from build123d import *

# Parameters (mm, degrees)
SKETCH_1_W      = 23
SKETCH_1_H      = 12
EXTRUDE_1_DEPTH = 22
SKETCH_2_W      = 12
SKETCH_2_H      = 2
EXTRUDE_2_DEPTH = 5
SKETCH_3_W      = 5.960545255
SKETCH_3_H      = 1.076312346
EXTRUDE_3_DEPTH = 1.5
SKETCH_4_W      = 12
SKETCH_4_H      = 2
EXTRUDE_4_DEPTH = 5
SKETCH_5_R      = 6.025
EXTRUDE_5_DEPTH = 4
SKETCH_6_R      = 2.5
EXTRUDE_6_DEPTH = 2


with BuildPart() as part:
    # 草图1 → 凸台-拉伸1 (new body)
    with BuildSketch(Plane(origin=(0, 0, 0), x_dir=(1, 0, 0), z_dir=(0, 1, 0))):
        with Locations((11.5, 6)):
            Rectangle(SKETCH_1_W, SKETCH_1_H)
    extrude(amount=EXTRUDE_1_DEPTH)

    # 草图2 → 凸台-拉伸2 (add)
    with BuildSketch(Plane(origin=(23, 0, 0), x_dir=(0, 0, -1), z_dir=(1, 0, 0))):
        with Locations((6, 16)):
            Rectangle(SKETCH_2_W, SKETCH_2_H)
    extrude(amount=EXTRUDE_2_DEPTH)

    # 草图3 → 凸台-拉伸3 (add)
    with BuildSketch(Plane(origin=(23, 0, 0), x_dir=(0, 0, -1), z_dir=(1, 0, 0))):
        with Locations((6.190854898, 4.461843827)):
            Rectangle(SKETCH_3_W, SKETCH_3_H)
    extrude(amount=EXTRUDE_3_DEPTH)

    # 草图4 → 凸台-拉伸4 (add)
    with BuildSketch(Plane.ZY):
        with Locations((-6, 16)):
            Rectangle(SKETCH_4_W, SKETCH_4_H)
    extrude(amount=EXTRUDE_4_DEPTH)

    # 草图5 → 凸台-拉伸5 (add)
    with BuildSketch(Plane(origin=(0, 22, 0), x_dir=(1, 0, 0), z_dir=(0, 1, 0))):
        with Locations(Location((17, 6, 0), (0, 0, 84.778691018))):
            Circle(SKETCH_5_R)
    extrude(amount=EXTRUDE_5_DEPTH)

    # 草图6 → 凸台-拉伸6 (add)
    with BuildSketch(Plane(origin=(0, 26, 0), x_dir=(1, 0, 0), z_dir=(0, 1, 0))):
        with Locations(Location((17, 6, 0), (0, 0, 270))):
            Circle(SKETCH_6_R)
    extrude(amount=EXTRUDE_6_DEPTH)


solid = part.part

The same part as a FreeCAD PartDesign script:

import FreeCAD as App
import Part
import Sketcher
from FreeCAD import Vector
Q = App.Units.Quantity


def add_polygon(sketch, points):
    """Adds a closed chain of lines whose ends are joined by coincident constraints."""
    first, n = sketch.GeometryCount, len(points)
    for a, b in zip(points, points[1:] + points[:1]):
        sketch.addGeometry(Part.LineSegment(App.Vector(*a, 0), App.Vector(*b, 0)), False)
    for i in range(n):
        sketch.addConstraint(Sketcher.Constraint("Coincident", first + i, 2, first + (i + 1) % n, 1))

doc = App.newDocument("Part")
body = doc.addObject("PartDesign::Body", "Body")

# Sketch on XZ plane
sketch1 = body.newObject("Sketcher::SketchObject", "Sketch")
sketch1.AttachmentSupport = (doc.getObject("XZ_Plane"), [""])
sketch1.MapMode = "FlatFace"
add_polygon(sketch1, [(0, -12), (0, 0), (23, 0), (23, -12)])  # lines 0-3
sketch1.addConstraint(Sketcher.Constraint("Vertical", 0))
sketch1.addConstraint(Sketcher.Constraint("Horizontal", 1))
sketch1.addConstraint(Sketcher.Constraint("Vertical", 2))
sketch1.addConstraint(Sketcher.Constraint("Horizontal", 3))
sketch1.addConstraint(Sketcher.Constraint("Coincident", 0, 2, -1, 1))
sketch1.addConstraint(Sketcher.Constraint("DistanceX", 1, 1, 1, 2, Q("23 mm")))
sketch1.addConstraint(Sketcher.Constraint("DistanceY", 0, 1, 0, 2, Q("12 mm")))
pad1 = body.newObject("PartDesign::Pad", "Pad")
pad1.Profile = sketch1
pad1.Length = 22
pad1.Reversed = True

# Sketch on YZ plane
sketch2 = body.newObject("Sketcher::SketchObject", "Sketch001")
sketch2.AttachmentSupport = (doc.getObject("YZ_Plane"), [""])
sketch2.MapMode = "FlatFace"
sketch2.AttachmentOffset = App.Placement(Vector(0, 0, 23), App.Rotation())
add_polygon(sketch2, [(17, 0), (15, 0), (15, -12), (17, -12)])  # lines 0-3
sketch2.addConstraint(Sketcher.Constraint("Horizontal", 0))
sketch2.addConstraint(Sketcher.Constraint("Vertical", 1))
sketch2.addConstraint(Sketcher.Constraint("Horizontal", 2))
sketch2.addConstraint(Sketcher.Constraint("Vertical", 3))
sketch2.addConstraint(Sketcher.Constraint("PointOnObject", 0, 2, -1))
sketch2.addConstraint(Sketcher.Constraint("DistanceX", 0, 2, 0, 1, Q("2 mm")))
sketch2.addConstraint(Sketcher.Constraint("DistanceY", 1, 2, 1, 1, Q("12 mm")))
sketch2.addConstraint(Sketcher.Constraint("DistanceX", -1, 1, 0, 2, Q("15 mm")))
pad2 = body.newObject("PartDesign::Pad", "Pad001")
pad2.Profile = sketch2
pad2.Length = 5

# Sketch on YZ plane
sketch3 = body.newObject("Sketcher::SketchObject", "Sketch002")
sketch3.AttachmentSupport = (doc.getObject("YZ_Plane"), [""])
sketch3.MapMode = "FlatFace"
sketch3.AttachmentOffset = App.Placement(Vector(0, 0, 23), App.Rotation())
add_polygon(sketch3, [(5, -3.210582), (3.923688, -3.210582), (3.923688, -9.171128), (5, -9.171128)])  # lines 0-3
sketch3.addConstraint(Sketcher.Constraint("Horizontal", 0))
sketch3.addConstraint(Sketcher.Constraint("Vertical", 1))
sketch3.addConstraint(Sketcher.Constraint("Horizontal", 2))
sketch3.addConstraint(Sketcher.Constraint("Vertical", 3))
sketch3.addConstraint(Sketcher.Constraint("DistanceX", -1, 1, 2, 2, Q("5 mm")))
sketch3.addConstraint(Sketcher.Constraint("DistanceX", 0, 2, 0, 1, Q("1.076312 mm")))
sketch3.addConstraint(Sketcher.Constraint("DistanceY", 1, 2, 1, 1, Q("5.960545 mm")))
sketch3.addConstraint(Sketcher.Constraint("DistanceY", 0, 2, -1, 1, Q("3.210582 mm")))
pad3 = body.newObject("PartDesign::Pad", "Pad002")
pad3.Profile = sketch3
pad3.Length = 1.5

# Sketch on YZ plane
sketch4 = body.newObject("Sketcher::SketchObject", "Sketch003")
sketch4.AttachmentSupport = (doc.getObject("YZ_Plane"), [""])
sketch4.MapMode = "FlatFace"
add_polygon(sketch4, [(17, -12), (15, -12), (15, 0), (17, 0)])  # lines 0-3
sketch4.addConstraint(Sketcher.Constraint("Horizontal", 0))
sketch4.addConstraint(Sketcher.Constraint("Vertical", 1))
sketch4.addConstraint(Sketcher.Constraint("Horizontal", 2))
sketch4.addConstraint(Sketcher.Constraint("Vertical", 3))
sketch4.addConstraint(Sketcher.Constraint("PointOnObject", 1, 2, -1))
sketch4.addConstraint(Sketcher.Constraint("DistanceX", 0, 2, 0, 1, Q("2 mm")))
sketch4.addConstraint(Sketcher.Constraint("DistanceY", 1, 1, 1, 2, Q("12 mm")))
sketch4.addConstraint(Sketcher.Constraint("DistanceX", -1, 1, 0, 2, Q("15 mm")))
pad4 = body.newObject("PartDesign::Pad", "Pad003")
pad4.Profile = sketch4
pad4.Length = 5
pad4.Reversed = True

# Sketch on XZ plane
sketch5 = body.newObject("Sketcher::SketchObject", "Sketch004")
sketch5.AttachmentSupport = (doc.getObject("XZ_Plane"), [""])
sketch5.MapMode = "FlatFace"
sketch5.AttachmentOffset = App.Placement(Vector(0, 0, -22), App.Rotation())
sketch5.addGeometry(Part.Circle(Vector(17, -6, 0), Vector(0, 0, 1), 6.025), False)
sketch5.addConstraint(Sketcher.Constraint("Diameter", 0, Q("12.05 mm")))
sketch5.addConstraint(Sketcher.Constraint("DistanceX", -1, 1, 0, 3, Q("17 mm")))
sketch5.addConstraint(Sketcher.Constraint("DistanceY", 0, 3, -1, 1, Q("6 mm")))
pad5 = body.newObject("PartDesign::Pad", "Pad004")
pad5.Profile = sketch5
pad5.Length = 4
pad5.Reversed = True

# Sketch on XZ plane
sketch6 = body.newObject("Sketcher::SketchObject", "Sketch005")
sketch6.AttachmentSupport = (doc.getObject("XZ_Plane"), [""])
sketch6.MapMode = "FlatFace"
sketch6.AttachmentOffset = App.Placement(Vector(0, 0, -26), App.Rotation())
sketch6.addGeometry(Part.Circle(Vector(17, -6, 0), Vector(0, 0, 1), 2.5), False)
sketch6.addConstraint(Sketcher.Constraint("Diameter", 0, Q("5 mm")))
sketch6.addConstraint(Sketcher.Constraint("DistanceX", -1, 1, 0, 3, Q("17 mm")))
sketch6.addConstraint(Sketcher.Constraint("DistanceY", 0, 3, -1, 1, Q("6 mm")))
pad6 = body.newObject("PartDesign::Pad", "Pad005")
pad6.Profile = sketch6
pad6.Length = 2
pad6.Reversed = True

doc.recompute()
